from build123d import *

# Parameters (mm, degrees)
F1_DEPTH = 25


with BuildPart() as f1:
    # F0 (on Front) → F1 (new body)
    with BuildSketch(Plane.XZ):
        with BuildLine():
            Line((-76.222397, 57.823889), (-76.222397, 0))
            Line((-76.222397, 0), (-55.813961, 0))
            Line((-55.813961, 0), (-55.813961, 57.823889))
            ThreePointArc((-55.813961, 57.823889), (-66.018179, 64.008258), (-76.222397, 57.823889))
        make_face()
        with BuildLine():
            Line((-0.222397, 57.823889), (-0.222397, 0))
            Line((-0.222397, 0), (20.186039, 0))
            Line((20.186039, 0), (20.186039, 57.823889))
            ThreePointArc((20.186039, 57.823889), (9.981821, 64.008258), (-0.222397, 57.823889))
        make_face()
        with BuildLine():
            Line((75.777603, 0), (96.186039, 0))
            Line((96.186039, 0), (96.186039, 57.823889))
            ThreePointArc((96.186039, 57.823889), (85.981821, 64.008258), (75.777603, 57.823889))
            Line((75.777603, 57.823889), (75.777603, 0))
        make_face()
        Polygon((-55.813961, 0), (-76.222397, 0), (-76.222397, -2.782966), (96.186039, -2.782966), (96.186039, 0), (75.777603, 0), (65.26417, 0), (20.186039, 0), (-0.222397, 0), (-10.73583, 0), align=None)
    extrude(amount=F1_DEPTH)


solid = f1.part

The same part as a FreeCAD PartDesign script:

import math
import FreeCAD as App
import Part
import Sketcher
from FreeCAD import Vector

doc = App.newDocument("Part")
params = doc.addObject("Spreadsheet::Sheet", "Params")
for row, (alias, value) in enumerate([
    ("pad1_length", "25 mm"),
], start=1):
    params.set(f"A{row}", alias)
    params.set(f"B{row}", "=" + value)
    params.setAlias(f"B{row}", alias)

body = doc.addObject("PartDesign::Body", "Body")

sketch1 = body.newObject("Sketcher::SketchObject", "Sketch")
sketch1.AttachmentSupport = (doc.getObject("XZ_Plane"), [""])
sketch1.MapMode = "FlatFace"
sketch1.addGeometry([
    Part.LineSegment(Vector(-76, 58, 0), Vector(-76, -3, 0)),
    Part.LineSegment(Vector(-76, -3, 0), Vector(96, -3, 0)),
    Part.LineSegment(Vector(96, -3, 0), Vector(96, 58, 0)),
    Part.ArcOfCircle(Part.Circle(Vector(86, 52, 0), Vector(0, 0, 1), 12), math.radians(28), math.radians(152)),
    Part.LineSegment(Vector(76, 58, 0), Vector(76, 0, 0)),
    Part.LineSegment(Vector(76, 0, 0), Vector(20, 0, 0)),
    Part.LineSegment(Vector(20, 0, 0), Vector(20, 58, 0)),
    Part.ArcOfCircle(Part.Circle(Vector(10, 52, 0), Vector(0, 0, 1), 12), math.radians(28), math.radians(152)),
    Part.LineSegment(Vector(0, 58, 0), Vector(0, 0, 0)),
    Part.LineSegment(Vector(0, 0, 0), Vector(-56, 0, 0)),
    Part.LineSegment(Vector(-56, 0, 0), Vector(-56, 58, 0)),
    Part.ArcOfCircle(Part.Circle(Vector(-66, 52, 0), Vector(0, 0, 1), 12), math.radians(28), math.radians(152)),
], False)
sketch1.addConstraint([
    Sketcher.Constraint("Coincident", 0, 2, 1, 1),
    Sketcher.Constraint("Coincident", 1, 2, 2, 1),
    Sketcher.Constraint("Coincident", 2, 2, 3, 1),
    Sketcher.Constraint("Coincident", 3, 2, 4, 1),
    Sketcher.Constraint("Coincident", 4, 2, 5, 1),
    Sketcher.Constraint("Coincident", 5, 2, 6, 1),
    Sketcher.Constraint("Coincident", 6, 2, 7, 1),
    Sketcher.Constraint("Coincident", 7, 2, 8, 1),
    Sketcher.Constraint("Coincident", 8, 2, 9, 1),
    Sketcher.Constraint("Coincident", 9, 2, 10, 1),
    Sketcher.Constraint("Coincident", 10, 2, 11, 1),
    Sketcher.Constraint("Coincident", 11, 2, 0, 1),
    Sketcher.Constraint("Vertical", 0),
    Sketcher.Constraint("Horizontal", 1),
    Sketcher.Constraint("Vertical", 2),
    Sketcher.Constraint("Vertical", 4),
    Sketcher.Constraint("Horizontal", 5),
    Sketcher.Constraint("Vertical", 6),
    Sketcher.Constraint("Vertical", 8),
    Sketcher.Constraint("Horizontal", 9),
    Sketcher.Constraint("Vertical", 10),
    Sketcher.Constraint("Equal", 3, 7),
    Sketcher.Constraint("Equal", 7, 11),
    Sketcher.Constraint("PointOnObject", 4, 2, -1),
    Sketcher.Constraint("PointOnObject", 8, 2, -1),
    Sketcher.Constraint("Horizontal", 3, 3, 7, 3),
    Sketcher.Constraint("Horizontal", 7, 3, 11, 3),
    Sketcher.Constraint("Horizontal", 2, 2, 3, 2),
    Sketcher.Constraint("Horizontal", 3, 2, 6, 2),
    Sketcher.Constraint("Horizontal", 6, 2, 7, 2),
    Sketcher.Constraint("Horizontal", 7, 2, 10, 2),
    Sketcher.Constraint("Horizontal", 10, 2, 11, 2),
    Sketcher.Constraint("Equal", 5, 9),
    Sketcher.Constraint("DistanceX", 7, 3, 3, 3, 76.0),
    Sketcher.Constraint("Radius", 3, 11.510672),
    Sketcher.Constraint("DistanceY", 4, 2, 4, 1, 57.823889),
    Sketcher.Constraint("DistanceX", 1, 1, 1, 2, 172.408436),
    Sketcher.Constraint("DistanceY", 0, 2, 0, 1, 60.606855),
    Sketcher.Constraint("DistanceX", -1, 1, 3, 3, 85.981821),
])
pad1 = body.newObject("PartDesign::Pad", "Pad")
pad1.Profile = sketch1
pad1.setExpression("Length", "Params.pad1_length")

doc.recompute()
